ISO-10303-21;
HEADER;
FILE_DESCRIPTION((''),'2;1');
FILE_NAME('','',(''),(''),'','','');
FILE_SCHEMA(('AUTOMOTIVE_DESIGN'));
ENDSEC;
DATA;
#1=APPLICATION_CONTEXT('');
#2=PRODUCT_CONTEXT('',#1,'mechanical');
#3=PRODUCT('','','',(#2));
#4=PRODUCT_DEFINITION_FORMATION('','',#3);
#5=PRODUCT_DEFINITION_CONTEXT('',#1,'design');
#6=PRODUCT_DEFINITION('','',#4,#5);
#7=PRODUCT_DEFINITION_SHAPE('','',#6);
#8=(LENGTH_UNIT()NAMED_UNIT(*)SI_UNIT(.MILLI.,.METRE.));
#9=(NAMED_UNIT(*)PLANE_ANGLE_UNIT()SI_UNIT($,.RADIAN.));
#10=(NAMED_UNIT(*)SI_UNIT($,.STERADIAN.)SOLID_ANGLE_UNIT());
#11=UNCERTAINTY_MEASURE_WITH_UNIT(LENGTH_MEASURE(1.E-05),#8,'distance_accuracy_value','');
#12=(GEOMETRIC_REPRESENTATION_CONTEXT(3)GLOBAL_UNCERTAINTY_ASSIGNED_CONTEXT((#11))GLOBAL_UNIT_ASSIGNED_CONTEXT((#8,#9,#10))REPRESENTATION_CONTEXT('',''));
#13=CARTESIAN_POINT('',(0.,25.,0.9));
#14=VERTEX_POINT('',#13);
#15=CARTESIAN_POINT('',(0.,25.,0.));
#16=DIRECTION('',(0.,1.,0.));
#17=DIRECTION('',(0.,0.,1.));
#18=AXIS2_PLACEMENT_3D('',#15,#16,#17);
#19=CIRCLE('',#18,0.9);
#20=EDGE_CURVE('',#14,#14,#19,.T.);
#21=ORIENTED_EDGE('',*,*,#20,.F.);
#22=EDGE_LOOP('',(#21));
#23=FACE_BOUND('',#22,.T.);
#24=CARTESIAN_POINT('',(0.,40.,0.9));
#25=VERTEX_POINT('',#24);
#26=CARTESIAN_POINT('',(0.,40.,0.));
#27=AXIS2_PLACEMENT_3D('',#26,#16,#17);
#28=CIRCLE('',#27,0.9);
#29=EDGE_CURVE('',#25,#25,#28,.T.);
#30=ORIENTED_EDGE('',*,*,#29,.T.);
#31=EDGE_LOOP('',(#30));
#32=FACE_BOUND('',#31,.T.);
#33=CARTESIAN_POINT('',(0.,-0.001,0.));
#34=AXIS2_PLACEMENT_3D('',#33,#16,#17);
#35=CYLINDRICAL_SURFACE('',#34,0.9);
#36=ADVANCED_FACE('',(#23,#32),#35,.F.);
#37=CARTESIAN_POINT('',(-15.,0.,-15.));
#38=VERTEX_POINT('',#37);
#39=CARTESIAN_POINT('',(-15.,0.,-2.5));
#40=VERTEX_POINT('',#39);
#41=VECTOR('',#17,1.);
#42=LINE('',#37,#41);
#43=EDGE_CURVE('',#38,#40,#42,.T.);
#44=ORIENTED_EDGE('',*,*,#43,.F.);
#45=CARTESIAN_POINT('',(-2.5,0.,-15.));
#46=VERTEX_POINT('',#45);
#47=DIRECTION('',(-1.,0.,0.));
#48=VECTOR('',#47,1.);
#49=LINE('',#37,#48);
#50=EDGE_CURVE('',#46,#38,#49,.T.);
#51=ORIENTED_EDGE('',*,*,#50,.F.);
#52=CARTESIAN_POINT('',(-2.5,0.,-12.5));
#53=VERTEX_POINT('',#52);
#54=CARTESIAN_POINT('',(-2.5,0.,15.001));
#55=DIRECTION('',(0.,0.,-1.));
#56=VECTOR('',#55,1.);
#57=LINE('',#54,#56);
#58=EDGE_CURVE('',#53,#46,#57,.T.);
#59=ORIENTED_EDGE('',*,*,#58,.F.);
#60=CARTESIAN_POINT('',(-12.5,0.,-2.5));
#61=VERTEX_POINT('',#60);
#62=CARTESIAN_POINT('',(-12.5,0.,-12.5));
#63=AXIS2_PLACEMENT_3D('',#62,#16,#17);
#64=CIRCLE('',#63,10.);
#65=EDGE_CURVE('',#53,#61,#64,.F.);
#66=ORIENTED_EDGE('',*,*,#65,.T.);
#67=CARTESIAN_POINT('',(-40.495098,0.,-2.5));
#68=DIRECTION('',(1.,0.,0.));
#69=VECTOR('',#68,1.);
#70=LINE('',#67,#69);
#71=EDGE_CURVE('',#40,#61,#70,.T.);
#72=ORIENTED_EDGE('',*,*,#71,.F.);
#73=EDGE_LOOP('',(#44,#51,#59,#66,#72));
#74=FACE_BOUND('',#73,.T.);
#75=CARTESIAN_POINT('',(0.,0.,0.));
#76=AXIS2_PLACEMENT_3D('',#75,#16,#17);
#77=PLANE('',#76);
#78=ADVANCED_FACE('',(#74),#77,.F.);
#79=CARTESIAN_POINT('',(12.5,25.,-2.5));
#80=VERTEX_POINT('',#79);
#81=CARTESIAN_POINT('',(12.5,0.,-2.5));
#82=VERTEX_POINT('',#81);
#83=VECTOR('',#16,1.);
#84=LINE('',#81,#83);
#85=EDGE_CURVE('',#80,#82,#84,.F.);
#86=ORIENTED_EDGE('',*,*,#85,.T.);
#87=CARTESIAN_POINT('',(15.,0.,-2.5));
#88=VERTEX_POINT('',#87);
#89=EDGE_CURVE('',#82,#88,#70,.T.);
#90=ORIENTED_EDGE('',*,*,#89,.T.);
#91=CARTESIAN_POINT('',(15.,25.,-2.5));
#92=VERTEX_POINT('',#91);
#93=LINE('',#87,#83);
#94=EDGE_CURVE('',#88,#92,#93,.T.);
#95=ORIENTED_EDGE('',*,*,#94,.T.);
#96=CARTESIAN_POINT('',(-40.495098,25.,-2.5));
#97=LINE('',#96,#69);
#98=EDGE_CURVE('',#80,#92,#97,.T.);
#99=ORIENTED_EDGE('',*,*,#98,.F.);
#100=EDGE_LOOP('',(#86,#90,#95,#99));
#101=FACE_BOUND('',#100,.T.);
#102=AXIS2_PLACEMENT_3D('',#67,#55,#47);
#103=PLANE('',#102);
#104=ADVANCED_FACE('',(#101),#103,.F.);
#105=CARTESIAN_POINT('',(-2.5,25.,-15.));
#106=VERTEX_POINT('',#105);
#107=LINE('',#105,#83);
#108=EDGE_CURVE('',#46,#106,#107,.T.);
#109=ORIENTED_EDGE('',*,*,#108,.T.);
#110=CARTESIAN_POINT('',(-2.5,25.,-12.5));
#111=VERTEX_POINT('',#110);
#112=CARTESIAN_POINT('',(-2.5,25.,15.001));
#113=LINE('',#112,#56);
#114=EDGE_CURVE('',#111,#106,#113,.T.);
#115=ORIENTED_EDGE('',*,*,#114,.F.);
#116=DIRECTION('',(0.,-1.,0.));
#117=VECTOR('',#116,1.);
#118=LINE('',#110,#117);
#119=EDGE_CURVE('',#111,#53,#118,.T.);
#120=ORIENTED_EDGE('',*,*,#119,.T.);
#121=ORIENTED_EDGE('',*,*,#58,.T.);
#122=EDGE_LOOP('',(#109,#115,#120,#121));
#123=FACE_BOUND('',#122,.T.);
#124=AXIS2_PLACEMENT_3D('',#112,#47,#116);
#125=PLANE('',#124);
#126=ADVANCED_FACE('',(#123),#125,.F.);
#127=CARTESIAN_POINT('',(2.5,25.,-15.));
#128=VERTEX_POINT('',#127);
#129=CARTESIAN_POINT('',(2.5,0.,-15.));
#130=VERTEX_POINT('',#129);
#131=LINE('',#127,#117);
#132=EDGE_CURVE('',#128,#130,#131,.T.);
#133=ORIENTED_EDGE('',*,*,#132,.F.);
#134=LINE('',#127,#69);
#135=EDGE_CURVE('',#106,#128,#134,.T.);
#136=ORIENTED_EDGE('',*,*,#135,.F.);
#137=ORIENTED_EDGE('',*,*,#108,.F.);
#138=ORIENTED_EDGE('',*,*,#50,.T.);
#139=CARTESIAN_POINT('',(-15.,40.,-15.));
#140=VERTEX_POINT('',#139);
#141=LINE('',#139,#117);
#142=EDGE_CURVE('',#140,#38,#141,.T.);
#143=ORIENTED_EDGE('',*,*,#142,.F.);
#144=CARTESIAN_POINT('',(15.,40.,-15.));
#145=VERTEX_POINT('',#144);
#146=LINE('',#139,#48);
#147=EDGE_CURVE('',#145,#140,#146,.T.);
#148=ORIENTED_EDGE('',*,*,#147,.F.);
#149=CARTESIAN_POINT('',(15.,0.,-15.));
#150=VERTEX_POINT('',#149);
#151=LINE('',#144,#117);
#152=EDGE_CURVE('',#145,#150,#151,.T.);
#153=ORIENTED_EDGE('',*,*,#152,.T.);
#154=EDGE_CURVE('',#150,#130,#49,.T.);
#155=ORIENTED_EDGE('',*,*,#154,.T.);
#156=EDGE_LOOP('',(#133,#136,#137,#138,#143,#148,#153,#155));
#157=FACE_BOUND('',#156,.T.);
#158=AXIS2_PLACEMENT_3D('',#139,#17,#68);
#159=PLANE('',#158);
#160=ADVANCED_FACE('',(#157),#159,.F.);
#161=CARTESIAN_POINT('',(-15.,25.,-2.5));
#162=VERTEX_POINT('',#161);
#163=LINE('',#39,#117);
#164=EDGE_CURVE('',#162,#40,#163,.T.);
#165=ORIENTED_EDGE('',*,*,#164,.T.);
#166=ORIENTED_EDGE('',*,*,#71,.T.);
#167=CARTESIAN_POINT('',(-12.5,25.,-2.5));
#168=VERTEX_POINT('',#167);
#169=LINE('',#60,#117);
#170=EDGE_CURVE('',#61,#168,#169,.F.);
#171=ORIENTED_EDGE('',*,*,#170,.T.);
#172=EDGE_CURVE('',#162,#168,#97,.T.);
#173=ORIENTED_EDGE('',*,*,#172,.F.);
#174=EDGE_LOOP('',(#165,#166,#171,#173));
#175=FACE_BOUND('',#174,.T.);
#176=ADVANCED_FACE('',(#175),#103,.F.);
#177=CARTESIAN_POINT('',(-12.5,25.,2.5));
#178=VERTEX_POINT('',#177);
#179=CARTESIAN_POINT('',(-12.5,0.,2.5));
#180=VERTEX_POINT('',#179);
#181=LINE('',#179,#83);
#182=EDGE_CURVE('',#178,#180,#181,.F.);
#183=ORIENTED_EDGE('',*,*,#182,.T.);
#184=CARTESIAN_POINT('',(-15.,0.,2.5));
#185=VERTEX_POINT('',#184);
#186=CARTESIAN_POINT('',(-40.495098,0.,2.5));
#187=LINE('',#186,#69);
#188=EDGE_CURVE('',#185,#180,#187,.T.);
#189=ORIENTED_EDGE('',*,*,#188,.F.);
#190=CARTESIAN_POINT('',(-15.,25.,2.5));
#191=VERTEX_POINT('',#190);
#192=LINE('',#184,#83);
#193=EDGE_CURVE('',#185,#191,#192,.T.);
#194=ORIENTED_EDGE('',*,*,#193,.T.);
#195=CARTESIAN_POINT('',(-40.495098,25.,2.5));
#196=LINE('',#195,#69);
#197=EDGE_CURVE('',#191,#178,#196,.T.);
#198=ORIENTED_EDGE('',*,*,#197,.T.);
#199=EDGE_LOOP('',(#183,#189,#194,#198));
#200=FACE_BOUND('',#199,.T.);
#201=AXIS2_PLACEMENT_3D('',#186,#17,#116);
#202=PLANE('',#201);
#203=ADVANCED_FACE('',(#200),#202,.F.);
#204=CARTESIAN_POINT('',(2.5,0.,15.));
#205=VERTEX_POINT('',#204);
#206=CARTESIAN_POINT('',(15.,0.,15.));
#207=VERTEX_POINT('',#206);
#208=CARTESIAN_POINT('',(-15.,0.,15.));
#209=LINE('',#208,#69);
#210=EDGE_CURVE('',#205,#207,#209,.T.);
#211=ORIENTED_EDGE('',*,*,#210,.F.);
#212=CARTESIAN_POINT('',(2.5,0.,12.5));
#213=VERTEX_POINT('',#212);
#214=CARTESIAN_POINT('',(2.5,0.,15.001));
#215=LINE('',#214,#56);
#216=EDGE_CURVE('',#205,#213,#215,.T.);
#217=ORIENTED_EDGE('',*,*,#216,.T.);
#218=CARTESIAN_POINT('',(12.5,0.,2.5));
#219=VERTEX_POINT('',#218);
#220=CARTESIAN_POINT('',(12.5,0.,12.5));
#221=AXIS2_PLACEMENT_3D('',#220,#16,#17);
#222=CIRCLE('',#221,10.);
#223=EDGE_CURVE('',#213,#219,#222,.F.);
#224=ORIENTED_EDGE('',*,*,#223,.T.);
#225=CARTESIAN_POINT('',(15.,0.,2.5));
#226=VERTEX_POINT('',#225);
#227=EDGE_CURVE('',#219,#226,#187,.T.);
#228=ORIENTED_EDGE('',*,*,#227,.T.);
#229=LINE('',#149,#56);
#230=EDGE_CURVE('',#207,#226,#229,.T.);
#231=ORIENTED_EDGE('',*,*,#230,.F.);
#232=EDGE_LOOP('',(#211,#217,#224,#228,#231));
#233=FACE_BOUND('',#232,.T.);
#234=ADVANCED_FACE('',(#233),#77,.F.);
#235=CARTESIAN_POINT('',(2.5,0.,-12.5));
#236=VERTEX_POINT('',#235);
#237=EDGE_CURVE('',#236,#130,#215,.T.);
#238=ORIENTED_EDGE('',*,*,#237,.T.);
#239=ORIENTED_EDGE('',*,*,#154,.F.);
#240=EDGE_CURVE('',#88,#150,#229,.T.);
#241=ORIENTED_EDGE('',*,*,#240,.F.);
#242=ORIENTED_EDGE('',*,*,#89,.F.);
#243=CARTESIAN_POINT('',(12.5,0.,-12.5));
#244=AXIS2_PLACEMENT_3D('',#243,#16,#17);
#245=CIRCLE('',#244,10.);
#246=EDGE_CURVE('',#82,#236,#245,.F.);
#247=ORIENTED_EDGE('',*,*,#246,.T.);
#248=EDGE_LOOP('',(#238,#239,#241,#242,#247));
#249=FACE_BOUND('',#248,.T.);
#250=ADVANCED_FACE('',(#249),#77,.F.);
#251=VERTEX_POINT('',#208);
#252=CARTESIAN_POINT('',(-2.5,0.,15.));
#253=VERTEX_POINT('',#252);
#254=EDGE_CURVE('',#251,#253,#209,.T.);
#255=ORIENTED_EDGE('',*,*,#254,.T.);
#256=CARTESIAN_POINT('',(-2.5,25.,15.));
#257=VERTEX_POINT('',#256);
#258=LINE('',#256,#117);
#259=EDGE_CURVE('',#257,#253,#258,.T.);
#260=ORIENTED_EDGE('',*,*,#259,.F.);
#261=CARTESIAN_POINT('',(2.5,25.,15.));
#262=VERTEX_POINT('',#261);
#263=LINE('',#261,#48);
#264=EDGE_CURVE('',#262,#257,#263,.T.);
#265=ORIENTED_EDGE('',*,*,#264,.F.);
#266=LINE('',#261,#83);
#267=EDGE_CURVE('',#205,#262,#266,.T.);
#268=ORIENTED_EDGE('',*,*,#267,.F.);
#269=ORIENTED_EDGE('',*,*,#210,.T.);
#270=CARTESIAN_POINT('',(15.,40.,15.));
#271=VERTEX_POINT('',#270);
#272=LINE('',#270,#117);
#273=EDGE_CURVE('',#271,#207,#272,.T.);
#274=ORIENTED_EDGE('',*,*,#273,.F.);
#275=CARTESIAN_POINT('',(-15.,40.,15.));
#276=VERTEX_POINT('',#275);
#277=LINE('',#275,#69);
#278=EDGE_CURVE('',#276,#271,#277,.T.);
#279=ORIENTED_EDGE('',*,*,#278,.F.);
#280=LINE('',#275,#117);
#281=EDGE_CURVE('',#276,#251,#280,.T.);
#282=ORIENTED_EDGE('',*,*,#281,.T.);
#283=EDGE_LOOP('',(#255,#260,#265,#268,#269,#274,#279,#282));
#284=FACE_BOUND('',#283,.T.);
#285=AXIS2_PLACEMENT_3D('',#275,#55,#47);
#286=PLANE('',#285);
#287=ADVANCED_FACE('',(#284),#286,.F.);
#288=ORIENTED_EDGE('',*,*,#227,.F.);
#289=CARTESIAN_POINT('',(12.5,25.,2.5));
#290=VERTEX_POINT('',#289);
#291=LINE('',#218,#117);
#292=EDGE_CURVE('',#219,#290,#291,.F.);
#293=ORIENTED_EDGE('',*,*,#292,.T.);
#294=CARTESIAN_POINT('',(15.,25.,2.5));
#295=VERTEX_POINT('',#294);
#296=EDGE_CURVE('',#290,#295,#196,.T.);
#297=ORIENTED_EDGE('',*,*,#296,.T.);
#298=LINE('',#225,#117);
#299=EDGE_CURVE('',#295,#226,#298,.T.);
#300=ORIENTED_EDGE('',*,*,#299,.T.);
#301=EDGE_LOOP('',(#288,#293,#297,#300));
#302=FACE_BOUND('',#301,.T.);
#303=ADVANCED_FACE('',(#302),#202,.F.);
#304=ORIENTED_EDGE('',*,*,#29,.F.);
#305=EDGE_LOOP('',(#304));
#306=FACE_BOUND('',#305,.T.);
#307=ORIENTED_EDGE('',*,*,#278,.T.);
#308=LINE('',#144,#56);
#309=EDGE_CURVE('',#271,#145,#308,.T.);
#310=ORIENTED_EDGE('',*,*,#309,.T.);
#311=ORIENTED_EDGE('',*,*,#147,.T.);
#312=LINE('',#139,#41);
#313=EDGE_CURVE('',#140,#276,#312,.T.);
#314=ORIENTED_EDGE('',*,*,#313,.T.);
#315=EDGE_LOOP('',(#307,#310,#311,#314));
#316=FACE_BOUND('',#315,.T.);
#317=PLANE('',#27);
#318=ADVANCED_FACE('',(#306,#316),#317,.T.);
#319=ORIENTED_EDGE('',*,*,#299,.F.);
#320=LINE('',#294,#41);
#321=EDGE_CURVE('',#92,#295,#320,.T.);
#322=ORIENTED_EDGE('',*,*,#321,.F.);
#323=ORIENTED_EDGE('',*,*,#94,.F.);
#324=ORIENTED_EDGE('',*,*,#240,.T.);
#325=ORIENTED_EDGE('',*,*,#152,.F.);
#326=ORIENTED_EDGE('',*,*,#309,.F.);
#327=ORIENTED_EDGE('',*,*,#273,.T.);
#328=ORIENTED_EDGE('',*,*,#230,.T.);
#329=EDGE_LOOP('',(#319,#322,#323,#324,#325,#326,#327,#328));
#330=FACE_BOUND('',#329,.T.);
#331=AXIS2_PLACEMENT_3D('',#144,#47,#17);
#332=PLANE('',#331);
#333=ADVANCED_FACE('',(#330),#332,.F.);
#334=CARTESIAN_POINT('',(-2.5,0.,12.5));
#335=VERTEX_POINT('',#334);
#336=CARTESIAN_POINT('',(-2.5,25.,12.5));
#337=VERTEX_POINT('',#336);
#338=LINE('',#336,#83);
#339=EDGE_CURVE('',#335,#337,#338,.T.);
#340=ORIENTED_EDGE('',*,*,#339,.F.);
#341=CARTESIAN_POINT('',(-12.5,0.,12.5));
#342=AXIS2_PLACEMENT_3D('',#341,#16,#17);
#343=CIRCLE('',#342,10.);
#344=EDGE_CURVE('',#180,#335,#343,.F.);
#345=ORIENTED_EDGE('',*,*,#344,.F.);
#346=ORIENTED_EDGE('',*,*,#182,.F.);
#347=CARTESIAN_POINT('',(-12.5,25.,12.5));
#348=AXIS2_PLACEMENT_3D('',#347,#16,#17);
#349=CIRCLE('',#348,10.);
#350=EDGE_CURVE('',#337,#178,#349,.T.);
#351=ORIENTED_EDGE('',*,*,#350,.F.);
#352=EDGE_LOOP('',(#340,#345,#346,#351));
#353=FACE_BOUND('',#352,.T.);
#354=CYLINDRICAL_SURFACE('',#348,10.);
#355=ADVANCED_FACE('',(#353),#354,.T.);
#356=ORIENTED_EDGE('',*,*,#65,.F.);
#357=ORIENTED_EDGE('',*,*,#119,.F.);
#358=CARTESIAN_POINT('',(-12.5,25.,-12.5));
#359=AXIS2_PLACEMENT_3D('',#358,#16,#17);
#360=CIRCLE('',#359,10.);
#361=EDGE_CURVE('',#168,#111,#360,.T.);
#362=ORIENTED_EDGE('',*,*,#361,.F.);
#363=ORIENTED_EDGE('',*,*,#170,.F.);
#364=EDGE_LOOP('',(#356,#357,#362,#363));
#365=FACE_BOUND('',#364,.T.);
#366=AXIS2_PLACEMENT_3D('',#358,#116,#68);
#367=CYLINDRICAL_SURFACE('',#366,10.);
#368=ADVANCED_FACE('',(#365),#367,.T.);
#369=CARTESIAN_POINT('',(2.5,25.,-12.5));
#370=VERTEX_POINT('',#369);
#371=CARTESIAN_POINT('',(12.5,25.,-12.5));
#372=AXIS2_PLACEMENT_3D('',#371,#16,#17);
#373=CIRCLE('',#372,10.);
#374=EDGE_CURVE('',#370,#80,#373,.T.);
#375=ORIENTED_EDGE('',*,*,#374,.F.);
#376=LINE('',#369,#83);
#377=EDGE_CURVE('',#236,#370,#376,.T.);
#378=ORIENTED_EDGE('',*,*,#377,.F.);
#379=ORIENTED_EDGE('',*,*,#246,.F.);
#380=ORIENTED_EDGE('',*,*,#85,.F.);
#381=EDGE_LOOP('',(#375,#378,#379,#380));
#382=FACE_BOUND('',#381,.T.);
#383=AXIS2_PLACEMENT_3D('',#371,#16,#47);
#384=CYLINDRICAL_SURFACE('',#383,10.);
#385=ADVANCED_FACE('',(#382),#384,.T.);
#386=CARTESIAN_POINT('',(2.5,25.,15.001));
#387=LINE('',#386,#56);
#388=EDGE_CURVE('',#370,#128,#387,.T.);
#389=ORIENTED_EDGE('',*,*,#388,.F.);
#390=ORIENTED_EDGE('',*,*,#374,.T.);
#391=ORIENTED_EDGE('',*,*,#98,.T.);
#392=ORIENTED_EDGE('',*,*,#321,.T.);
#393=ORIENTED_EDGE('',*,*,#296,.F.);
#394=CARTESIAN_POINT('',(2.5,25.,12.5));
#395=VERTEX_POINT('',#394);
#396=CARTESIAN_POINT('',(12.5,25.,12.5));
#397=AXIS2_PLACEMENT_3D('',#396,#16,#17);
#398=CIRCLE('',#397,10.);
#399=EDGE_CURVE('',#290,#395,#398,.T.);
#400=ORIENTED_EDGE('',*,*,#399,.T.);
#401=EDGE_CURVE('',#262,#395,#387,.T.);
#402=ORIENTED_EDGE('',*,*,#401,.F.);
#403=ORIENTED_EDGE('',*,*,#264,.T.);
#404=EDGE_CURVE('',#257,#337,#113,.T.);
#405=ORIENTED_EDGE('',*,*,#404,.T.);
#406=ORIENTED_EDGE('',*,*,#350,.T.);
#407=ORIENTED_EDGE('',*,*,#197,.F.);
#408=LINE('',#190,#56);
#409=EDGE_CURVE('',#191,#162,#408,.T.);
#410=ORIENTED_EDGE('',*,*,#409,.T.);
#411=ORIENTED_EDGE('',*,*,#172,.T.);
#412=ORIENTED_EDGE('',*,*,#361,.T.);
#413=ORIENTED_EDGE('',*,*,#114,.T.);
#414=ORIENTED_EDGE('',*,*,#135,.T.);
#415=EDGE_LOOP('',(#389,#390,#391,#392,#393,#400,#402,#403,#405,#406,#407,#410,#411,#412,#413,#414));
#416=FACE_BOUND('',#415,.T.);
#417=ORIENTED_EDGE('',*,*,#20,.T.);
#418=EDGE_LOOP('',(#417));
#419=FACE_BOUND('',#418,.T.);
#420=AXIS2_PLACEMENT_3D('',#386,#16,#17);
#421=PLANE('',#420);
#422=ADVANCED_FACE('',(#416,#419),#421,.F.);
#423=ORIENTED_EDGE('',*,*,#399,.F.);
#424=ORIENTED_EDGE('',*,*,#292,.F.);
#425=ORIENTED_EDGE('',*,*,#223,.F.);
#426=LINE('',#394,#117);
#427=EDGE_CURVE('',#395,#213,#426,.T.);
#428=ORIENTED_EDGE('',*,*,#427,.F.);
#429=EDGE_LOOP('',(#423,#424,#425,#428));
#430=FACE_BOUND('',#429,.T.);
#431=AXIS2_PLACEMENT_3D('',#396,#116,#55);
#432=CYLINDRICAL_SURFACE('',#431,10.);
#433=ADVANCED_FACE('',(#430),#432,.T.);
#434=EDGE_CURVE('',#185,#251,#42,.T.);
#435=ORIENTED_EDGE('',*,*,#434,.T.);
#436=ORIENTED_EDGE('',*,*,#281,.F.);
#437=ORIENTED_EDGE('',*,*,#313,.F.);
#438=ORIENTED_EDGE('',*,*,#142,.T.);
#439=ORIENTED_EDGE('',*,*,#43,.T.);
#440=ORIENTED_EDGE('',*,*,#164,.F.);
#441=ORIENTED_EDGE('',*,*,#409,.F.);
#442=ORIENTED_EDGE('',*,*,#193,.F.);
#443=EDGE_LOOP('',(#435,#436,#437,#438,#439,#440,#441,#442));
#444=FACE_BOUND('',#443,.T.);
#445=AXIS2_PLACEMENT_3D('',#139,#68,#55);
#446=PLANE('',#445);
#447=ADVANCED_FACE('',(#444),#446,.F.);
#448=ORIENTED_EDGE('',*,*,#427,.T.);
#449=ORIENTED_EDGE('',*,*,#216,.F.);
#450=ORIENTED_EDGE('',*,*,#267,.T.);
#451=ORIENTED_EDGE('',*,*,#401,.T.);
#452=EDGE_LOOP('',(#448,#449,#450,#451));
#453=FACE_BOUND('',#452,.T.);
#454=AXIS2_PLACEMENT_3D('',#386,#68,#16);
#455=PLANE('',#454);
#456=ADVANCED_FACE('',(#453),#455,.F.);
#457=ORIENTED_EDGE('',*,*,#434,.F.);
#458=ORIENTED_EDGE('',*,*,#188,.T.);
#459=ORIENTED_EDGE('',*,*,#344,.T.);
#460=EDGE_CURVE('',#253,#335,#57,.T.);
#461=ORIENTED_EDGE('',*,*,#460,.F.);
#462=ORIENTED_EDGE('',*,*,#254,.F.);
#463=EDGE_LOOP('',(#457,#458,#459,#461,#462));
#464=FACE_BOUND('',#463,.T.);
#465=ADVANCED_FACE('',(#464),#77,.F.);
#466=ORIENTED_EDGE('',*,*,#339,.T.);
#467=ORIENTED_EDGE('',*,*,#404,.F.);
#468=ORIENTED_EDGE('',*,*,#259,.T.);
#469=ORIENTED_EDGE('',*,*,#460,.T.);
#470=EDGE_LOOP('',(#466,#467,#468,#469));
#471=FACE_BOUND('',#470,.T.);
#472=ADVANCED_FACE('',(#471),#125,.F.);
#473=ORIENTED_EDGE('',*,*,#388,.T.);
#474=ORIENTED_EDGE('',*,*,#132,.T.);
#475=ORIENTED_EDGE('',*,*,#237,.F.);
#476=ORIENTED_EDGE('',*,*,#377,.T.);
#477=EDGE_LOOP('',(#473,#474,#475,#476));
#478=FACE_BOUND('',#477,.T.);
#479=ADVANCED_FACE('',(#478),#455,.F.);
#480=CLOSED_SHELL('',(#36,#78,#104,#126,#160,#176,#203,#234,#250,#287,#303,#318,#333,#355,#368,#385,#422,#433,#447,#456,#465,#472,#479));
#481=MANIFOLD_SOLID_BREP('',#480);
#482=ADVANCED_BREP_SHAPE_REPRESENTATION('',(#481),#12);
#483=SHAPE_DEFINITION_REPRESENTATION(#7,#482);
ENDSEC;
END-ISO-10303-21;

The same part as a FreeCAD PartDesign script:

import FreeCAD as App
import Part
import Sketcher
from FreeCAD import Vector
Q = App.Units.Quantity


def edges_at(feature, points):
    """Names of the edges that pass closest to the given points."""
    edges = feature.Shape.Edges
    near = lambda p: min(range(len(edges)), key=lambda i: edges[i].distToShape(Part.Vertex(*p))[0])
    return sorted({f"Edge{near(p) + 1}" for p in points})


def add_polygon(sketch, points):
    """Adds a closed chain of lines whose ends are joined by coincident constraints."""
    first, n = sketch.GeometryCount, len(points)
    for a, b in zip(points, points[1:] + points[:1]):
        sketch.addGeometry(Part.LineSegment(App.Vector(*a, 0), App.Vector(*b, 0)), False)
    for i in range(n):
        sketch.addConstraint(Sketcher.Constraint("Coincident", first + i, 2, first + (i + 1) % n, 1))

doc = App.newDocument("Part")
body = doc.addObject("PartDesign::Body", "Body")

# Sketch on XZ plane
sketch1 = body.newObject("Sketcher::SketchObject", "Sketch")
sketch1.AttachmentSupport = (doc.getObject("XZ_Plane"), [""])
sketch1.MapMode = "FlatFace"
add_polygon(sketch1, [(-15, -15), (-15, 15), (15, 15), (15, -15)])  # lines 0-3
sketch1.addConstraint(Sketcher.Constraint("Vertical", 0))
sketch1.addConstraint(Sketcher.Constraint("Horizontal", 1))
sketch1.addConstraint(Sketcher.Constraint("Vertical", 2))
sketch1.addConstraint(Sketcher.Constraint("Horizontal", 3))
sketch1.addConstraint(Sketcher.Constraint("Symmetric", 0, 2, 2, 2, -1, 1))
sketch1.addConstraint(Sketcher.Constraint("Equal", 3, 0))
sketch1.addConstraint(Sketcher.Constraint("DistanceX", 1, 1, 1, 2, Q("30 mm")))
pad1 = body.newObject("PartDesign::Pad", "Pad")
pad1.Profile = sketch1
pad1.Length = 40
pad1.Reversed = True

# Sketch on XZ plane
sketch2 = body.newObject("Sketcher::SketchObject", "Sketch001")
sketch2.AttachmentSupport = (doc.getObject("XZ_Plane"), [""])
sketch2.MapMode = "FlatFace"
sketch2.AttachmentOffset = App.Placement(Vector(0, 0, -40), App.Rotation())
sketch2.addGeometry(Part.Circle(Vector(0, 0, 0), Vector(0, 0, 1), 0.9), False)
sketch2.addConstraint(Sketcher.Constraint("Coincident", 0, 3, -1, 1))
sketch2.addConstraint(Sketcher.Constraint("Diameter", 0, Q("1.8 mm")))
pocket1 = body.newObject("PartDesign::Pocket", "Pocket")
pocket1.Profile = sketch2
pocket1.Type = "UpToFirst"
pocket1.Reversed = True

# Sketch on XY plane
sketch3 = body.newObject("Sketcher::SketchObject", "Sketch002")
sketch3.AttachmentSupport = (doc.getObject("XY_Plane"), [""])
sketch3.MapMode = "FlatFace"
sketch3.AttachmentOffset = App.Placement(Vector(0, 0, -15), App.Rotation())
add_polygon(sketch3, [(2.5, 25), (2.5, 0), (-2.5, 0), (-2.5, 25)])  # lines 0-3
sketch3.addConstraint(Sketcher.Constraint("Vertical", 0))
sketch3.addConstraint(Sketcher.Constraint("Horizontal", 1))
sketch3.addConstraint(Sketcher.Constraint("Vertical", 2))
sketch3.addConstraint(Sketcher.Constraint("Horizontal", 3))
sketch3.addConstraint(Sketcher.Constraint("Symmetric", 0, 2, 1, 2, -1, 1))
sketch3.addConstraint(Sketcher.Constraint("DistanceX", 1, 2, 1, 1, Q("5 mm")))
sketch3.addConstraint(Sketcher.Constraint("DistanceY", 0, 2, 0, 1, Q("25 mm")))
pocket2 = body.newObject("PartDesign::Pocket", "Pocket001")
pocket2.Profile = sketch3
pocket2.Type = "UpToFirst"
pocket2.Reversed = True

# Sketch on YZ plane
sketch4 = body.newObject("Sketcher::SketchObject", "Sketch003")
sketch4.AttachmentSupport = (doc.getObject("YZ_Plane"), [""])
sketch4.MapMode = "FlatFace"
sketch4.AttachmentOffset = App.Placement(Vector(0, 0, 15), App.Rotation())
add_polygon(sketch4, [(25, 2.5), (0, 2.5), (0, -2.5), (25, -2.5)])  # lines 0-3
sketch4.addConstraint(Sketcher.Constraint("Horizontal", 0))
sketch4.addConstraint(Sketcher.Constraint("Vertical", 1))
sketch4.addConstraint(Sketcher.Constraint("Horizontal", 2))
sketch4.addConstraint(Sketcher.Constraint("Vertical", 3))
sketch4.addConstraint(Sketcher.Constraint("Symmetric", 0, 2, 1, 2, -1, 1))
sketch4.addConstraint(Sketcher.Constraint("DistanceX", 0, 2, 0, 1, Q("25 mm")))
sketch4.addConstraint(Sketcher.Constraint("DistanceY", 1, 2, 1, 1, Q("5 mm")))
pocket3 = body.newObject("PartDesign::Pocket", "Pocket002")
pocket3.Profile = sketch4
pocket3.Length = 30
doc.recompute()

fillet = body.newObject("PartDesign::Fillet", "Fillet")
fillet.Base = (pocket3, edges_at(pocket3, [
    (2.5, 12.5, 2.5),
    (-2.5, 12.5, 2.5),
    (2.5, 12.5, -2.5),
    (-2.5, 12.5, -2.5),
]))
fillet.Radius = 10

doc.recompute()
